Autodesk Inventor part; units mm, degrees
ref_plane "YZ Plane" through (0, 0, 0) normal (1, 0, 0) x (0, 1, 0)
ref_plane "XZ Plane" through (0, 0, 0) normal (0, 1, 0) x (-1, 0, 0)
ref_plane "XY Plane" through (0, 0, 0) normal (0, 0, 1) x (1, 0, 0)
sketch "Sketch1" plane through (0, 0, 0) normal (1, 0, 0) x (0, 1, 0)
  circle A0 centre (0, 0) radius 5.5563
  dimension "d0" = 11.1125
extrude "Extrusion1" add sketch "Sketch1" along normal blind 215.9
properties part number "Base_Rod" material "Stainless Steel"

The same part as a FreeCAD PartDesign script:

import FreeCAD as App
import Part
import Sketcher
Q = App.Units.Quantity

doc = App.newDocument("Part")
body = doc.addObject("PartDesign::Body", "Body")

# Sketch on YZ plane
sketch1 = doc.addObject("Sketcher::SketchObject", "Sketch")
body.addObject(sketch1)
sketch1.AttachmentSupport = (doc.YZ_Plane, [""])
sketch1.MapMode = "FlatFace"
sketch1.addGeometry(Part.Circle(App.Vector(0, 0, 0), App.Vector(0, 0, 1), 6), False)
sketch1.addConstraint(Sketcher.Constraint("Coincident", 0, 3, -1, 1))
sketch1.addConstraint(Sketcher.Constraint("Diameter", 0, Q("0.4375 in")))
pad1 = doc.addObject("PartDesign::Pad", "Pad")
body.addObject(pad1)
pad1.Profile = sketch1
pad1.Length = Q("8.5 in")

doc.recompute()
